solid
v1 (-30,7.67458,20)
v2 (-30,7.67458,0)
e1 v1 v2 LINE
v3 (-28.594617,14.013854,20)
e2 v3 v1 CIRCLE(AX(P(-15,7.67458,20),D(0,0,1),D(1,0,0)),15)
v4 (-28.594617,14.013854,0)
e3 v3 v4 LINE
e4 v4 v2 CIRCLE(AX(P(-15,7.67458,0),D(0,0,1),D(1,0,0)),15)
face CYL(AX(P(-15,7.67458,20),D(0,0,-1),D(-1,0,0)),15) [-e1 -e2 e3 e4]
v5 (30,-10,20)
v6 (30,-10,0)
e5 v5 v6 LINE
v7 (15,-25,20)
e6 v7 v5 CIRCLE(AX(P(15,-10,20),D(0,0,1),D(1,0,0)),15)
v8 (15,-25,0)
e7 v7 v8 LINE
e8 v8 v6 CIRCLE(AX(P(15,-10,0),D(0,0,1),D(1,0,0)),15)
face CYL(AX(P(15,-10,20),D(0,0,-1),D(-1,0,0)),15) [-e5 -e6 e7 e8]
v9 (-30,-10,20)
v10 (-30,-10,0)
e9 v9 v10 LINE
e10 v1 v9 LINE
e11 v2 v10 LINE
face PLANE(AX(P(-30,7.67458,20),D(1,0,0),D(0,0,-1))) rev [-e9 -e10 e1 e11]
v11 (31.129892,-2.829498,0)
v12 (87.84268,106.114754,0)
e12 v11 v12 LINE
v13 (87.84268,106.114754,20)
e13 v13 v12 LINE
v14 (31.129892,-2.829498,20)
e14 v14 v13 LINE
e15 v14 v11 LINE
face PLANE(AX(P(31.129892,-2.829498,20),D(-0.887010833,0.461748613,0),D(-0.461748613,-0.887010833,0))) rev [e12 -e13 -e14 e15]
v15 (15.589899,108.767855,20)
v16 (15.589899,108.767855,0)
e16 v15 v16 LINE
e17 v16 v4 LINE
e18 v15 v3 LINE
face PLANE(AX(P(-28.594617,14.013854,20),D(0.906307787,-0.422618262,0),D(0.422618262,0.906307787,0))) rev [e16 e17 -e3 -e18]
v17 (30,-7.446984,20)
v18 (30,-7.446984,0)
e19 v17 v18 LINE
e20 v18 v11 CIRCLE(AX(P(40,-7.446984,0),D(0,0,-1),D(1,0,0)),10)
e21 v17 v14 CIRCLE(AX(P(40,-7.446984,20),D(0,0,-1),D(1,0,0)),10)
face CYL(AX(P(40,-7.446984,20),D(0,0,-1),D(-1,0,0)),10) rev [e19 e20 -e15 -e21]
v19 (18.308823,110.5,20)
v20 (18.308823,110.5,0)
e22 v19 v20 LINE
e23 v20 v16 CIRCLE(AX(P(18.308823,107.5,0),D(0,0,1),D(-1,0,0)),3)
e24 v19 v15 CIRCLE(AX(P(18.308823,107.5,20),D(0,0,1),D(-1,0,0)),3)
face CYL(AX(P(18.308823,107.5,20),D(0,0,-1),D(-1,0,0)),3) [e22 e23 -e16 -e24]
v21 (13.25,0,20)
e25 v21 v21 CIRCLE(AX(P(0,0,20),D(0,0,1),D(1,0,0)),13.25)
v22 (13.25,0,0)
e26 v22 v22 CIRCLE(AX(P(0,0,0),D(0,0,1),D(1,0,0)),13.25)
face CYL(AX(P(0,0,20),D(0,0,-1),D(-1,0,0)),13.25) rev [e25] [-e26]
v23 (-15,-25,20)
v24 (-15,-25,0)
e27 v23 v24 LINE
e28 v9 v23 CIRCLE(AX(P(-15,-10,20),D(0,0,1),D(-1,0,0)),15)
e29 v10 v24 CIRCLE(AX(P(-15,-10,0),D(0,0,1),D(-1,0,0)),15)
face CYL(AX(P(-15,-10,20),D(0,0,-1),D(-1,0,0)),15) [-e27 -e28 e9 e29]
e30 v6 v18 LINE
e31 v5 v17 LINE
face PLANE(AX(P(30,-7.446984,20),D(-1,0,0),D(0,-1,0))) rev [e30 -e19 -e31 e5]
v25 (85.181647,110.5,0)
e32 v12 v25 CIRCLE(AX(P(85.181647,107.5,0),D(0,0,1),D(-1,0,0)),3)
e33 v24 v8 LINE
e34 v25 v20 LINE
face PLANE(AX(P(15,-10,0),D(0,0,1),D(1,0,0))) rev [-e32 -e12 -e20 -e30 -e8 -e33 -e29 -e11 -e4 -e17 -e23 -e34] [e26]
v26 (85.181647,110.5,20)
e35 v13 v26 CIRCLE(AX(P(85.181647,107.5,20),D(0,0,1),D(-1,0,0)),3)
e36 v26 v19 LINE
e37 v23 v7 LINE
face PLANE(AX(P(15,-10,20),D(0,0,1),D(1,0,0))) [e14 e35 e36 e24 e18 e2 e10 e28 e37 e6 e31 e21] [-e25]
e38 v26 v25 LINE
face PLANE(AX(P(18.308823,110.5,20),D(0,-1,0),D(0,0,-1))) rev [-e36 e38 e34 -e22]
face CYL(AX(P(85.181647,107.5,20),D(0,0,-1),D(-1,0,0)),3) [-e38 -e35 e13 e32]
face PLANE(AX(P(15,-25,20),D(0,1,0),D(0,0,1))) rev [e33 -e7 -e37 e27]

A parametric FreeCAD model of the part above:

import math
import FreeCAD as App
import Part
import Sketcher
Q = App.Units.Quantity

doc = App.newDocument("Part")
body = doc.addObject("PartDesign::Body", "Body")

# Sketch on XY plane
sketch1 = doc.addObject("Sketcher::SketchObject", "Sketch")
body.addObject(sketch1)
sketch1.AttachmentSupport = (doc.XY_Plane, [""])
sketch1.MapMode = "FlatFace"
sketch1.addGeometry([
    Part.LineSegment(App.Vector(30, -10, 0), App.Vector(30, -7.4, 0)),  # 0
    Part.ArcOfCircle(Part.Circle(App.Vector(40, -7.4, 0), App.Vector(0, 0, 1), 10), math.radians(153), math.radians(180)),  # 1
    Part.LineSegment(App.Vector(31.1, -2.8, 0), App.Vector(87.8, 106.1, 0)),  # 2
    Part.ArcOfCircle(Part.Circle(App.Vector(85.2, 107.5, 0), App.Vector(0, 0, 1), 3), math.radians(-27), math.radians(90)),  # 3
    Part.LineSegment(App.Vector(85.2, 110.5, 0), App.Vector(18.3, 110.5, 0)),  # 4
    Part.ArcOfCircle(Part.Circle(App.Vector(18.3, 107.5, 0), App.Vector(0, 0, 1), 3), math.radians(90), math.radians(155)),  # 5
    Part.LineSegment(App.Vector(15.6, 108.8, 0), App.Vector(-28.6, 14, 0)),  # 6
    Part.ArcOfCircle(Part.Circle(App.Vector(-15, 7.7, 0), App.Vector(0, 0, 1), 15), math.radians(155), math.radians(180)),  # 7
    Part.LineSegment(App.Vector(-30, 7.7, 0), App.Vector(-30, -10, 0)),  # 8
    Part.ArcOfCircle(Part.Circle(App.Vector(-15, -10, 0), App.Vector(0, 0, 1), 15), math.radians(180), math.radians(270)),  # 9
    Part.LineSegment(App.Vector(-15, -25, 0), App.Vector(15, -25, 0)),  # 10
    Part.ArcOfCircle(Part.Circle(App.Vector(15, -10, 0), App.Vector(0, 0, 1), 15), math.radians(-90), math.radians(0)),  # 11
    Part.Circle(App.Vector(0, 0, 0), App.Vector(0, 0, 1), 13.2),  # 12
], False)
sketch1.addConstraint([
    Sketcher.Constraint("Tangent", 0, 2, 1, 2),
    Sketcher.Constraint("Tangent", 1, 1, 2, 1),
    Sketcher.Constraint("Tangent", 2, 2, 3, 1),
    Sketcher.Constraint("Tangent", 3, 2, 4, 1),
    Sketcher.Constraint("Tangent", 4, 2, 5, 1),
    Sketcher.Constraint("Tangent", 5, 2, 6, 1),
    Sketcher.Constraint("Tangent", 6, 2, 7, 1),
    Sketcher.Constraint("Tangent", 7, 2, 8, 1),
    Sketcher.Constraint("Tangent", 8, 2, 9, 1),
    Sketcher.Constraint("Tangent", 9, 2, 10, 1),
    Sketcher.Constraint("Tangent", 10, 2, 11, 1),
    Sketcher.Constraint("Tangent", 11, 2, 0, 1),
    Sketcher.Constraint("Vertical", 0),
    Sketcher.Constraint("Horizontal", 4),
    Sketcher.Constraint("Vertical", 8),
    Sketcher.Constraint("Horizontal", 10),
    Sketcher.Constraint("Coincident", 12, 3, -1, 1),
    Sketcher.Constraint("Equal", 3, 5),
    Sketcher.Constraint("Equal", 7, 9),
    Sketcher.Constraint("Equal", 9, 11),
    Sketcher.Constraint("Radius", 1, 10.0),
    Sketcher.Constraint("Radius", 3, 3.0),
    Sketcher.Constraint("Radius", 7, 15.0),
    Sketcher.Constraint("Diameter", 12, 26.5),
    Sketcher.Constraint("DistanceX", 10, 1, 10, 2, 30.0),
    Sketcher.Constraint("Angle", 6, Q("-115 deg")),
    Sketcher.Constraint("DistanceX", -1, 1, 1, 3, 40.0),
    Sketcher.Constraint("DistanceY", 9, 3, -1, 1, 10.0),
    Sketcher.Constraint("Angle", 2, Q("62.5 deg")),
    Sketcher.Constraint("DistanceY", -1, 1, 3, 3, 107.5),
    Sketcher.Constraint("DistanceY", 8, 2, 8, 1, 17.67458),
    Sketcher.Constraint("DistanceY", 1, 1, -1, 1, 2.829498),
])
pad1 = doc.addObject("PartDesign::Pad", "Pad")
body.addObject(pad1)
pad1.Profile = sketch1
pad1.Length = 20

doc.recompute()
